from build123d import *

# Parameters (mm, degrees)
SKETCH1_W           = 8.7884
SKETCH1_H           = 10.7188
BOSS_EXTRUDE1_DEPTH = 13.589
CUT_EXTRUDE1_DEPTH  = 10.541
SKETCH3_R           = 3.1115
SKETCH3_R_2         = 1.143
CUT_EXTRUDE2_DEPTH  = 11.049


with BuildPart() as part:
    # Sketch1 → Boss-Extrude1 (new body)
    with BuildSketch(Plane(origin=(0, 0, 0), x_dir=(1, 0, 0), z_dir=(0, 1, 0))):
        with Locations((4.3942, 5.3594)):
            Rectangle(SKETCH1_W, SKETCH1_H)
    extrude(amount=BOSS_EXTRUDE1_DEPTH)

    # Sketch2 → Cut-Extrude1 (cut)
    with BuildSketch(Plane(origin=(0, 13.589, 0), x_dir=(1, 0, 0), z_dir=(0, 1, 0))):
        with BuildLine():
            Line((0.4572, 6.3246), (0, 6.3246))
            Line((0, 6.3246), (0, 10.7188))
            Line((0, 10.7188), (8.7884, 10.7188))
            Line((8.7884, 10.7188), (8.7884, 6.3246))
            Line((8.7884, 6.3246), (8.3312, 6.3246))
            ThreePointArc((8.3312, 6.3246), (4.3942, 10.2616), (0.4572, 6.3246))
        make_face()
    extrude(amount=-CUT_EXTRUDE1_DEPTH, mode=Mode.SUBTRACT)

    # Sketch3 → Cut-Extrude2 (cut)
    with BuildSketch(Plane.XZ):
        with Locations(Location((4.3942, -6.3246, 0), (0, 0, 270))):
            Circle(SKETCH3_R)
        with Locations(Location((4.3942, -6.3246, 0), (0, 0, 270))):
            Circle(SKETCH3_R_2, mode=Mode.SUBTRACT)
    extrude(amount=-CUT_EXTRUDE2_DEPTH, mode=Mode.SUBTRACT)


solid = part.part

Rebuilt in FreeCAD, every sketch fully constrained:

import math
import FreeCAD as App
import Part
import Sketcher
Q = App.Units.Quantity

doc = App.newDocument("Part")
body = doc.addObject("PartDesign::Body", "Body")

# Sketch on XZ plane
sketch1 = doc.addObject("Sketcher::SketchObject", "Sketch")
body.addObject(sketch1)
sketch1.AttachmentSupport = (doc.XZ_Plane, [""])
sketch1.MapMode = "FlatFace"
sketch1.addGeometry([
    Part.LineSegment(App.Vector(0, -11, 0), App.Vector(0, 0, 0)),
    Part.LineSegment(App.Vector(0, 0, 0), App.Vector(9, 0, 0)),
    Part.LineSegment(App.Vector(9, 0, 0), App.Vector(9, -11, 0)),
    Part.LineSegment(App.Vector(9, -11, 0), App.Vector(0, -11, 0)),
], False)
sketch1.addConstraint([
    Sketcher.Constraint("Coincident", 0, 2, 1, 1),
    Sketcher.Constraint("Coincident", 1, 2, 2, 1),
    Sketcher.Constraint("Coincident", 2, 2, 3, 1),
    Sketcher.Constraint("Coincident", 3, 2, 0, 1),
    Sketcher.Constraint("Vertical", 0),
    Sketcher.Constraint("Horizontal", 1),
    Sketcher.Constraint("Vertical", 2),
    Sketcher.Constraint("Horizontal", 3),
    Sketcher.Constraint("Coincident", 0, 2, -1, 1),
    Sketcher.Constraint("DistanceX", 1, 1, 1, 2, Q("0.346 in")),
    Sketcher.Constraint("DistanceY", 0, 1, 0, 2, Q("0.422 in")),
])
pad1 = doc.addObject("PartDesign::Pad", "Pad")
body.addObject(pad1)
pad1.Profile = sketch1
pad1.Length = Q("0.535 in")
pad1.Reversed = True

# Sketch on XZ plane
sketch2 = doc.addObject("Sketcher::SketchObject", "Sketch001")
body.addObject(sketch2)
sketch2.AttachmentSupport = (doc.XZ_Plane, [""])
sketch2.MapMode = "FlatFace"
sketch2.AttachmentOffset = App.Placement(App.Vector(0, 0, -0.535 * 25.4), App.Rotation())
sketch2.addGeometry([
    Part.LineSegment(App.Vector(0, -6.32, 0), App.Vector(0.46, -6.32, 0)),  # 0
    Part.ArcOfCircle(Part.Circle(App.Vector(4.39, -6.32, 0), App.Vector(0, 0, 1), 3.94), math.radians(180), math.radians(360)),  # 1
    Part.LineSegment(App.Vector(8.33, -6.32, 0), App.Vector(8.79, -6.32, 0)),  # 2
    Part.LineSegment(App.Vector(8.79, -6.32, 0), App.Vector(8.79, -10.72, 0)),  # 3
    Part.LineSegment(App.Vector(8.79, -10.72, 0), App.Vector(0, -10.72, 0)),  # 4
    Part.LineSegment(App.Vector(0, -10.72, 0), App.Vector(0, -6.32, 0)),  # 5
], False)
sketch2.addConstraint([
    Sketcher.Constraint("Coincident", 0, 2, 1, 1),
    Sketcher.Constraint("Coincident", 1, 2, 2, 1),
    Sketcher.Constraint("Coincident", 2, 2, 3, 1),
    Sketcher.Constraint("Coincident", 3, 2, 4, 1),
    Sketcher.Constraint("Coincident", 4, 2, 5, 1),
    Sketcher.Constraint("Coincident", 5, 2, 0, 1),
    Sketcher.Constraint("Horizontal", 0),
    Sketcher.Constraint("Horizontal", 2),
    Sketcher.Constraint("Vertical", 3),
    Sketcher.Constraint("Horizontal", 4),
    Sketcher.Constraint("Vertical", 5),
    Sketcher.Constraint("PointOnObject", 4, 2, -2),
    Sketcher.Constraint("Horizontal", 1, 3, 0, 2),
    Sketcher.Constraint("Horizontal", 0, 2, 1, 2),
    Sketcher.Constraint("Equal", 0, 2),
    Sketcher.Constraint("Radius", 1, Q("0.155 in")),
    Sketcher.Constraint("DistanceX", 0, 1, 0, 2, Q("0.018 in")),
    Sketcher.Constraint("DistanceY", 3, 2, 3, 1, Q("0.173 in")),
    Sketcher.Constraint("DistanceY", 1, 3, -1, 1, Q("0.249 in")),
])
pocket1 = doc.addObject("PartDesign::Pocket", "Pocket")
body.addObject(pocket1)
pocket1.Profile = sketch2
pocket1.Length = Q("0.415 in")
pocket1.Reversed = True

# Sketch on XZ plane
sketch3 = doc.addObject("Sketcher::SketchObject", "Sketch002")
body.addObject(sketch3)
sketch3.AttachmentSupport = (doc.XZ_Plane, [""])
sketch3.MapMode = "FlatFace"
sketch3.addGeometry([
    Part.Circle(App.Vector(4.4, -6.3, 0), App.Vector(0, 0, 1), 3.1),
    Part.Circle(App.Vector(4.4, -6.3, 0), App.Vector(0, 0, 1), 1.1),
], False)
sketch3.addConstraint([
    Sketcher.Constraint("Coincident", 1, 3, 0, 3),
    Sketcher.Constraint("Diameter", 1, Q("0.09 in")),
    Sketcher.Constraint("Diameter", 0, Q("0.245 in")),
    Sketcher.Constraint("DistanceX", -1, 1, 0, 3, Q("0.173 in")),
    Sketcher.Constraint("DistanceY", 0, 3, -1, 1, Q("0.249 in")),
])
pocket2 = doc.addObject("PartDesign::Pocket", "Pocket001")
body.addObject(pocket2)
pocket2.Profile = sketch3
pocket2.Length = Q("0.435 in")

doc.recompute()
